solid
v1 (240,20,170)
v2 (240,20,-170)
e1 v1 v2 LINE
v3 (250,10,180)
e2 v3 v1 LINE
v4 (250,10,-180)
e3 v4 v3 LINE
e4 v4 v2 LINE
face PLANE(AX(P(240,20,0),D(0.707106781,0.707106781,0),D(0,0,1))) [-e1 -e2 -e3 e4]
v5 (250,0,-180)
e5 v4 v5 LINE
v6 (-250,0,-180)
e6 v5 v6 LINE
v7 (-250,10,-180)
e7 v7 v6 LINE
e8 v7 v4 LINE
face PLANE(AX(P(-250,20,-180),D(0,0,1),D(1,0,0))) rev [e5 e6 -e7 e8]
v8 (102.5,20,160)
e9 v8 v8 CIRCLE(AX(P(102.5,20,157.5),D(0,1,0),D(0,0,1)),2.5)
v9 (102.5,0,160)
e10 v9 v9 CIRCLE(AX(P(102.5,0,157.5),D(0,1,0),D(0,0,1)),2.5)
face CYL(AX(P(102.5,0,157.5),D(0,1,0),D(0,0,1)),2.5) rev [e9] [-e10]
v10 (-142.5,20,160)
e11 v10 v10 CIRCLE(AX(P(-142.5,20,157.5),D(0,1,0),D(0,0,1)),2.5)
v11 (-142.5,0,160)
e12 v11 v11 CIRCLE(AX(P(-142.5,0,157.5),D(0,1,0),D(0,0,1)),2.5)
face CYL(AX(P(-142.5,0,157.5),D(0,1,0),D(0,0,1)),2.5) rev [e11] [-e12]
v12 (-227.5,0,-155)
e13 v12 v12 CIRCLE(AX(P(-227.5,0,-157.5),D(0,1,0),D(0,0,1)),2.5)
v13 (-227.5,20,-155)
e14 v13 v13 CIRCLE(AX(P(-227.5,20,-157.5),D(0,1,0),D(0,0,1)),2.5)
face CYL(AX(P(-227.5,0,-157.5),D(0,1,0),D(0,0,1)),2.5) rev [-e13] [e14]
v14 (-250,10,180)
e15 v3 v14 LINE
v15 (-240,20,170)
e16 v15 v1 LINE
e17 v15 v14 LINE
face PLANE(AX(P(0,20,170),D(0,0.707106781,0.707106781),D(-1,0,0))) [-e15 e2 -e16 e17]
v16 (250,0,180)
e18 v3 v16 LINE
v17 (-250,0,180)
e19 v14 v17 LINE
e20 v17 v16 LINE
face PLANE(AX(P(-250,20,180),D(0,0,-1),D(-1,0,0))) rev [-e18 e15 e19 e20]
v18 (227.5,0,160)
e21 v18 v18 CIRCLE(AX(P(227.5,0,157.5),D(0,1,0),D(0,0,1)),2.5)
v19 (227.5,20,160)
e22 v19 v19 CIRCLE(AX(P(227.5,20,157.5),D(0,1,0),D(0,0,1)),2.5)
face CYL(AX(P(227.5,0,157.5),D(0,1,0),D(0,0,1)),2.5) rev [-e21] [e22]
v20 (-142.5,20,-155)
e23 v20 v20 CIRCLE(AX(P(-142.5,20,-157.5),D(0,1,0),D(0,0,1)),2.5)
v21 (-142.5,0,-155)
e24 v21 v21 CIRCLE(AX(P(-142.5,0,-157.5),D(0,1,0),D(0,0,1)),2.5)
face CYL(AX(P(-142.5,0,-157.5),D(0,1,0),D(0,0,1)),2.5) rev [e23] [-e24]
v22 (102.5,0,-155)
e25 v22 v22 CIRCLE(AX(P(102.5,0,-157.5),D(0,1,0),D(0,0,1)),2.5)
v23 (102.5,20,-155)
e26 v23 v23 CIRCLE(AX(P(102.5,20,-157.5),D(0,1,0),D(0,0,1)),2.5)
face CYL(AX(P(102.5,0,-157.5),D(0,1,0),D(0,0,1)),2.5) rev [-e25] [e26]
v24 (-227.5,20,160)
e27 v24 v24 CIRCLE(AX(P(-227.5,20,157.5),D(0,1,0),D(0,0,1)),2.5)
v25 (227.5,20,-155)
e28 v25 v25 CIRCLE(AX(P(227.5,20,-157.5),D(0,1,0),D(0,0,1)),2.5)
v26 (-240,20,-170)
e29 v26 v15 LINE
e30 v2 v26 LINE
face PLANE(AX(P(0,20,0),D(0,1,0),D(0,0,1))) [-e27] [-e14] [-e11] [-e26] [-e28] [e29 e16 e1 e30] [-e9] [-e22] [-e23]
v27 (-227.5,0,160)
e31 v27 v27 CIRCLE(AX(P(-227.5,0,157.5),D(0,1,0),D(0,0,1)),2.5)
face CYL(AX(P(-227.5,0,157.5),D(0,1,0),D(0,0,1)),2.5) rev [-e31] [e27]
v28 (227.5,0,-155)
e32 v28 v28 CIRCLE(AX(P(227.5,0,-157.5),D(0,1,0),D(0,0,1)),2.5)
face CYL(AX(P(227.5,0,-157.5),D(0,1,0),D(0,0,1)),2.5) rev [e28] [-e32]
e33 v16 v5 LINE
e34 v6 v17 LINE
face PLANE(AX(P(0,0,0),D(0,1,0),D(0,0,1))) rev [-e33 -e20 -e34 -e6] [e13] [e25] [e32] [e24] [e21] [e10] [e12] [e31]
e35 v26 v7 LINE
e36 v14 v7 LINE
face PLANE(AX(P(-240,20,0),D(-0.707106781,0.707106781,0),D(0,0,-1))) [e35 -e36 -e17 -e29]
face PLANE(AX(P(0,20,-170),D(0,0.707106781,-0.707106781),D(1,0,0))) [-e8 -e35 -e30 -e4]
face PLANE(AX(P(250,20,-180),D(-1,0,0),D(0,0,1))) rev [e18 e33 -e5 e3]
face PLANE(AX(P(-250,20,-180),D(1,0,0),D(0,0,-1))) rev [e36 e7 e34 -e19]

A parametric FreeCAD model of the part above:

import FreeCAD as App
import Part
import Sketcher
from FreeCAD import Vector


def edges_at(feature, points):
    """Names of the edges that pass closest to the given points."""
    edges = feature.Shape.Edges
    near = lambda p: min(range(len(edges)), key=lambda i: edges[i].distToShape(Part.Vertex(*p))[0])
    return sorted({f"Edge{near(p) + 1}" for p in points})

doc = App.newDocument("Part")
body = doc.addObject("PartDesign::Body", "Body")

# Sketch on XZ plane
sketch1 = body.newObject("Sketcher::SketchObject", "Sketch")
sketch1.AttachmentSupport = (doc.getObject("XZ_Plane"), [""])
sketch1.MapMode = "FlatFace"
sketch1.addGeometry([
    Part.LineSegment(Vector(-250, -180, 0), Vector(-250, 180, 0)),
    Part.LineSegment(Vector(-250, 180, 0), Vector(250, 180, 0)),
    Part.LineSegment(Vector(250, 180, 0), Vector(250, -180, 0)),
    Part.LineSegment(Vector(250, -180, 0), Vector(-250, -180, 0)),
], False)
sketch1.addConstraint([
    Sketcher.Constraint("Coincident", 0, 2, 1, 1),
    Sketcher.Constraint("Coincident", 1, 2, 2, 1),
    Sketcher.Constraint("Coincident", 2, 2, 3, 1),
    Sketcher.Constraint("Coincident", 3, 2, 0, 1),
    Sketcher.Constraint("Vertical", 0),
    Sketcher.Constraint("Horizontal", 1),
    Sketcher.Constraint("Vertical", 2),
    Sketcher.Constraint("Horizontal", 3),
    Sketcher.Constraint("Symmetric", 0, 2, 2, 2, -1, 1),
    Sketcher.Constraint("DistanceX", 1, 1, 1, 2, 500.0),
    Sketcher.Constraint("DistanceY", 0, 1, 0, 2, 360.0),
])
pad1 = body.newObject("PartDesign::Pad", "Pad")
pad1.Profile = sketch1
pad1.Length = 20
pad1.Reversed = True
doc.recompute()

chamfer = body.newObject("PartDesign::Chamfer", "Chamfer")
chamfer.Base = (pad1, edges_at(pad1, [
    (-250, 20, 0),
    (0, 20, 180),
    (250, 20, 0),
    (0, 20, -180),
]))
chamfer.Size = 10

# Sketch on XZ plane
sketch2 = body.newObject("Sketcher::SketchObject", "Sketch001")
sketch2.AttachmentSupport = (doc.getObject("XZ_Plane"), [""])
sketch2.MapMode = "FlatFace"
sketch2.AttachmentOffset = App.Placement(Vector(0, 0, -20), App.Rotation())
sketch2.addGeometry([
    Part.Circle(Vector(-227.5, 157.5, 0), Vector(0, 0, 1), 2.5),  # 0
    Part.Circle(Vector(-142.5, 157.5, 0), Vector(0, 0, 1), 2.5),  # 1
    Part.Circle(Vector(102.5, 157.5, 0), Vector(0, 0, 1), 2.5),  # 2
    Part.Circle(Vector(227.5, 157.5, 0), Vector(0, 0, 1), 2.5),  # 3
    Part.Circle(Vector(-227.5, -157.5, 0), Vector(0, 0, 1), 2.5),  # 4
    Part.Circle(Vector(-142.5, -157.5, 0), Vector(0, 0, 1), 2.5),  # 5
    Part.Circle(Vector(102.5, -157.5, 0), Vector(0, 0, 1), 2.5),  # 6
    Part.Circle(Vector(227.5, -157.5, 0), Vector(0, 0, 1), 2.5),  # 7
], False)
sketch2.addConstraint([
    Sketcher.Constraint("Equal", 0, 1),
    Sketcher.Constraint("Equal", 1, 2),
    Sketcher.Constraint("Equal", 2, 3),
    Sketcher.Constraint("Equal", 3, 4),
    Sketcher.Constraint("Equal", 4, 5),
    Sketcher.Constraint("Equal", 5, 6),
    Sketcher.Constraint("Equal", 6, 7),
    Sketcher.Constraint("Symmetric", 3, 3, 4, 3, -1, 1),
    Sketcher.Constraint("Symmetric", 0, 3, 7, 3, -1, 1),
    Sketcher.Constraint("Symmetric", 0, 3, 3, 3, -2),
    Sketcher.Constraint("Symmetric", 1, 3, 5, 3, -1),
    Sketcher.Constraint("Symmetric", 2, 3, 6, 3, -1),
    Sketcher.Constraint("Horizontal", 0, 3, 1, 3),
    Sketcher.Constraint("Horizontal", 1, 3, 2, 3),
    Sketcher.Constraint("Diameter", 0, 5.0),
    Sketcher.Constraint("DistanceX", 0, 3, 1, 3, 85.0),
    Sketcher.Constraint("DistanceX", 1, 3, 2, 3, 245.0),
    Sketcher.Constraint("DistanceX", 2, 3, 3, 3, 125.0),
    Sketcher.Constraint("DistanceY", 4, 3, 0, 3, 315.0),
])
pocket1 = body.newObject("PartDesign::Pocket", "Pocket")
pocket1.Profile = sketch2
pocket1.Type = "ThroughAll"
pocket1.Reversed = True

doc.recompute()
